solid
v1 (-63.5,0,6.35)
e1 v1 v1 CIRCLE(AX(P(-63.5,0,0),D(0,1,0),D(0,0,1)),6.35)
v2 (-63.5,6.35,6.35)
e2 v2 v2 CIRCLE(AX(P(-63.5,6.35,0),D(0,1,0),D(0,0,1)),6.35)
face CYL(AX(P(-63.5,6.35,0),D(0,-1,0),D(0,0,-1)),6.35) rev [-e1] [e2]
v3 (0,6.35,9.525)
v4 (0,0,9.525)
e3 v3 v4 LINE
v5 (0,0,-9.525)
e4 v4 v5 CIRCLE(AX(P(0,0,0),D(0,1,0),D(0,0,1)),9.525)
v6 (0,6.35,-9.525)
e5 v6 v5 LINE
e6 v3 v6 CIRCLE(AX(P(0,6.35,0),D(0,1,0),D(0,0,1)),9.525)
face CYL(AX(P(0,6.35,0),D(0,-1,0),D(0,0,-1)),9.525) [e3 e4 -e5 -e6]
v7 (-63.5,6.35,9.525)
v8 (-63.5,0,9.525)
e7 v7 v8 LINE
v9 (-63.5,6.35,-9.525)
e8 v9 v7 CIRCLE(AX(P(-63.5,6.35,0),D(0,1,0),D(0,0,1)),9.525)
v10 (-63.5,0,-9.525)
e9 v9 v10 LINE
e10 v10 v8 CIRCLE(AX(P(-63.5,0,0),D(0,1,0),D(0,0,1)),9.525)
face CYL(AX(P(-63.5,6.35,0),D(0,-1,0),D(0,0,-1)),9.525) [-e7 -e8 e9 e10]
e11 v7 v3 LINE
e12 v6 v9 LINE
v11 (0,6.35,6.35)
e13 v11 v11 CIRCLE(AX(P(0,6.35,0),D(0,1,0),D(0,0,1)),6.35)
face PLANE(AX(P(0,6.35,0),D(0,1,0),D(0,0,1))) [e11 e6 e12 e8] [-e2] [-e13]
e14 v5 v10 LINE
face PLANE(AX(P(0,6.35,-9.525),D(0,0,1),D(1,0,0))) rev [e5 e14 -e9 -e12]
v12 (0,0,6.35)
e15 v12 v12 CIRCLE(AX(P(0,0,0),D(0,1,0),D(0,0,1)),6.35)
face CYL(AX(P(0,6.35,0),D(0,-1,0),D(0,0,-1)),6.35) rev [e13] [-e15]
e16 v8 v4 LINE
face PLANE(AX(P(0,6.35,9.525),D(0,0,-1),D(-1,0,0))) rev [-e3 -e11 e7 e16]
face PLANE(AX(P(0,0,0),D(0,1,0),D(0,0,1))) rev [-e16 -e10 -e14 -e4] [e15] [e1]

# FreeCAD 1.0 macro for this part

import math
import FreeCAD as App
import Part
import Sketcher

V = App.Vector
Q = App.Units.Quantity

doc = App.newDocument("Part")
params = doc.addObject("Spreadsheet::Sheet", "Params")
for row, (alias, value) in enumerate([
    ("sketch1_diameter", "0.5 in"),
    ("sketch1_width", "2.5 in"),
    ("sketch1_radius", "0.375 in"),
    ("pad1_length", "0.25 in"),
], start=1):
    params.set(f"A{row}", alias)
    params.set(f"B{row}", "=" + value)
    params.setAlias(f"B{row}", alias)

body = doc.addObject("PartDesign::Body", "Body")

# Sketch on XZ plane
sketch1 = doc.addObject("Sketcher::SketchObject", "Sketch")
body.addObject(sketch1)
sketch1.AttachmentSupport = (doc.XZ_Plane, [""])
sketch1.MapMode = "FlatFace"
sketch1.addGeometry(Part.LineSegment(V(-64, 10, 0), V(0, 10, 0)), False)
sketch1.addGeometry(Part.ArcOfCircle(Part.Circle(V(0, 0, 0), V(0, 0, 1), 10), math.radians(-90), math.radians(90)), False)
sketch1.addGeometry(Part.LineSegment(V(0, -10, 0), V(-64, -10, 0)), False)
sketch1.addGeometry(Part.ArcOfCircle(Part.Circle(V(-64, 0, 0), V(0, 0, 1), 10), math.radians(90), math.radians(270)), False)
sketch1.addGeometry(Part.Circle(V(0, 0, 0), V(0, 0, 1), 6), False)
sketch1.addGeometry(Part.Circle(V(-64, 0, 0), V(0, 0, 1), 6), False)
sketch1.addConstraint(Sketcher.Constraint("Tangent", 0, 2, 1, 2))
sketch1.addConstraint(Sketcher.Constraint("Tangent", 1, 1, 2, 1))
sketch1.addConstraint(Sketcher.Constraint("Tangent", 2, 2, 3, 2))
sketch1.addConstraint(Sketcher.Constraint("Tangent", 3, 1, 0, 1))
sketch1.addConstraint(Sketcher.Constraint("Horizontal", 0))
sketch1.addConstraint(Sketcher.Constraint("Horizontal", 2))
sketch1.addConstraint(Sketcher.Constraint("Coincident", 1, 3, -1, 1))
sketch1.addConstraint(Sketcher.Constraint("Coincident", 4, 3, -1, 1))
sketch1.addConstraint(Sketcher.Constraint("Coincident", 5, 3, 3, 3))
sketch1.addConstraint(Sketcher.Constraint("Equal", 4, 5))
sketch1.addConstraint(Sketcher.Constraint("Diameter", 4, Q("0.5 in")))
sketch1.addConstraint(Sketcher.Constraint("DistanceX", 0, 1, 0, 2, Q("2.5 in")))
sketch1.addConstraint(Sketcher.Constraint("Radius", 1, Q("0.375 in")))
sketch1.setExpression("Constraints[10]", "Params.sketch1_diameter")
sketch1.setExpression("Constraints[11]", "Params.sketch1_width")
sketch1.setExpression("Constraints[12]", "Params.sketch1_radius")
pad1 = doc.addObject("PartDesign::Pad", "Pad")
body.addObject(pad1)
pad1.Profile = sketch1
pad1.setExpression("Length", "Params.pad1_length")
pad1.Reversed = True

doc.recompute()
